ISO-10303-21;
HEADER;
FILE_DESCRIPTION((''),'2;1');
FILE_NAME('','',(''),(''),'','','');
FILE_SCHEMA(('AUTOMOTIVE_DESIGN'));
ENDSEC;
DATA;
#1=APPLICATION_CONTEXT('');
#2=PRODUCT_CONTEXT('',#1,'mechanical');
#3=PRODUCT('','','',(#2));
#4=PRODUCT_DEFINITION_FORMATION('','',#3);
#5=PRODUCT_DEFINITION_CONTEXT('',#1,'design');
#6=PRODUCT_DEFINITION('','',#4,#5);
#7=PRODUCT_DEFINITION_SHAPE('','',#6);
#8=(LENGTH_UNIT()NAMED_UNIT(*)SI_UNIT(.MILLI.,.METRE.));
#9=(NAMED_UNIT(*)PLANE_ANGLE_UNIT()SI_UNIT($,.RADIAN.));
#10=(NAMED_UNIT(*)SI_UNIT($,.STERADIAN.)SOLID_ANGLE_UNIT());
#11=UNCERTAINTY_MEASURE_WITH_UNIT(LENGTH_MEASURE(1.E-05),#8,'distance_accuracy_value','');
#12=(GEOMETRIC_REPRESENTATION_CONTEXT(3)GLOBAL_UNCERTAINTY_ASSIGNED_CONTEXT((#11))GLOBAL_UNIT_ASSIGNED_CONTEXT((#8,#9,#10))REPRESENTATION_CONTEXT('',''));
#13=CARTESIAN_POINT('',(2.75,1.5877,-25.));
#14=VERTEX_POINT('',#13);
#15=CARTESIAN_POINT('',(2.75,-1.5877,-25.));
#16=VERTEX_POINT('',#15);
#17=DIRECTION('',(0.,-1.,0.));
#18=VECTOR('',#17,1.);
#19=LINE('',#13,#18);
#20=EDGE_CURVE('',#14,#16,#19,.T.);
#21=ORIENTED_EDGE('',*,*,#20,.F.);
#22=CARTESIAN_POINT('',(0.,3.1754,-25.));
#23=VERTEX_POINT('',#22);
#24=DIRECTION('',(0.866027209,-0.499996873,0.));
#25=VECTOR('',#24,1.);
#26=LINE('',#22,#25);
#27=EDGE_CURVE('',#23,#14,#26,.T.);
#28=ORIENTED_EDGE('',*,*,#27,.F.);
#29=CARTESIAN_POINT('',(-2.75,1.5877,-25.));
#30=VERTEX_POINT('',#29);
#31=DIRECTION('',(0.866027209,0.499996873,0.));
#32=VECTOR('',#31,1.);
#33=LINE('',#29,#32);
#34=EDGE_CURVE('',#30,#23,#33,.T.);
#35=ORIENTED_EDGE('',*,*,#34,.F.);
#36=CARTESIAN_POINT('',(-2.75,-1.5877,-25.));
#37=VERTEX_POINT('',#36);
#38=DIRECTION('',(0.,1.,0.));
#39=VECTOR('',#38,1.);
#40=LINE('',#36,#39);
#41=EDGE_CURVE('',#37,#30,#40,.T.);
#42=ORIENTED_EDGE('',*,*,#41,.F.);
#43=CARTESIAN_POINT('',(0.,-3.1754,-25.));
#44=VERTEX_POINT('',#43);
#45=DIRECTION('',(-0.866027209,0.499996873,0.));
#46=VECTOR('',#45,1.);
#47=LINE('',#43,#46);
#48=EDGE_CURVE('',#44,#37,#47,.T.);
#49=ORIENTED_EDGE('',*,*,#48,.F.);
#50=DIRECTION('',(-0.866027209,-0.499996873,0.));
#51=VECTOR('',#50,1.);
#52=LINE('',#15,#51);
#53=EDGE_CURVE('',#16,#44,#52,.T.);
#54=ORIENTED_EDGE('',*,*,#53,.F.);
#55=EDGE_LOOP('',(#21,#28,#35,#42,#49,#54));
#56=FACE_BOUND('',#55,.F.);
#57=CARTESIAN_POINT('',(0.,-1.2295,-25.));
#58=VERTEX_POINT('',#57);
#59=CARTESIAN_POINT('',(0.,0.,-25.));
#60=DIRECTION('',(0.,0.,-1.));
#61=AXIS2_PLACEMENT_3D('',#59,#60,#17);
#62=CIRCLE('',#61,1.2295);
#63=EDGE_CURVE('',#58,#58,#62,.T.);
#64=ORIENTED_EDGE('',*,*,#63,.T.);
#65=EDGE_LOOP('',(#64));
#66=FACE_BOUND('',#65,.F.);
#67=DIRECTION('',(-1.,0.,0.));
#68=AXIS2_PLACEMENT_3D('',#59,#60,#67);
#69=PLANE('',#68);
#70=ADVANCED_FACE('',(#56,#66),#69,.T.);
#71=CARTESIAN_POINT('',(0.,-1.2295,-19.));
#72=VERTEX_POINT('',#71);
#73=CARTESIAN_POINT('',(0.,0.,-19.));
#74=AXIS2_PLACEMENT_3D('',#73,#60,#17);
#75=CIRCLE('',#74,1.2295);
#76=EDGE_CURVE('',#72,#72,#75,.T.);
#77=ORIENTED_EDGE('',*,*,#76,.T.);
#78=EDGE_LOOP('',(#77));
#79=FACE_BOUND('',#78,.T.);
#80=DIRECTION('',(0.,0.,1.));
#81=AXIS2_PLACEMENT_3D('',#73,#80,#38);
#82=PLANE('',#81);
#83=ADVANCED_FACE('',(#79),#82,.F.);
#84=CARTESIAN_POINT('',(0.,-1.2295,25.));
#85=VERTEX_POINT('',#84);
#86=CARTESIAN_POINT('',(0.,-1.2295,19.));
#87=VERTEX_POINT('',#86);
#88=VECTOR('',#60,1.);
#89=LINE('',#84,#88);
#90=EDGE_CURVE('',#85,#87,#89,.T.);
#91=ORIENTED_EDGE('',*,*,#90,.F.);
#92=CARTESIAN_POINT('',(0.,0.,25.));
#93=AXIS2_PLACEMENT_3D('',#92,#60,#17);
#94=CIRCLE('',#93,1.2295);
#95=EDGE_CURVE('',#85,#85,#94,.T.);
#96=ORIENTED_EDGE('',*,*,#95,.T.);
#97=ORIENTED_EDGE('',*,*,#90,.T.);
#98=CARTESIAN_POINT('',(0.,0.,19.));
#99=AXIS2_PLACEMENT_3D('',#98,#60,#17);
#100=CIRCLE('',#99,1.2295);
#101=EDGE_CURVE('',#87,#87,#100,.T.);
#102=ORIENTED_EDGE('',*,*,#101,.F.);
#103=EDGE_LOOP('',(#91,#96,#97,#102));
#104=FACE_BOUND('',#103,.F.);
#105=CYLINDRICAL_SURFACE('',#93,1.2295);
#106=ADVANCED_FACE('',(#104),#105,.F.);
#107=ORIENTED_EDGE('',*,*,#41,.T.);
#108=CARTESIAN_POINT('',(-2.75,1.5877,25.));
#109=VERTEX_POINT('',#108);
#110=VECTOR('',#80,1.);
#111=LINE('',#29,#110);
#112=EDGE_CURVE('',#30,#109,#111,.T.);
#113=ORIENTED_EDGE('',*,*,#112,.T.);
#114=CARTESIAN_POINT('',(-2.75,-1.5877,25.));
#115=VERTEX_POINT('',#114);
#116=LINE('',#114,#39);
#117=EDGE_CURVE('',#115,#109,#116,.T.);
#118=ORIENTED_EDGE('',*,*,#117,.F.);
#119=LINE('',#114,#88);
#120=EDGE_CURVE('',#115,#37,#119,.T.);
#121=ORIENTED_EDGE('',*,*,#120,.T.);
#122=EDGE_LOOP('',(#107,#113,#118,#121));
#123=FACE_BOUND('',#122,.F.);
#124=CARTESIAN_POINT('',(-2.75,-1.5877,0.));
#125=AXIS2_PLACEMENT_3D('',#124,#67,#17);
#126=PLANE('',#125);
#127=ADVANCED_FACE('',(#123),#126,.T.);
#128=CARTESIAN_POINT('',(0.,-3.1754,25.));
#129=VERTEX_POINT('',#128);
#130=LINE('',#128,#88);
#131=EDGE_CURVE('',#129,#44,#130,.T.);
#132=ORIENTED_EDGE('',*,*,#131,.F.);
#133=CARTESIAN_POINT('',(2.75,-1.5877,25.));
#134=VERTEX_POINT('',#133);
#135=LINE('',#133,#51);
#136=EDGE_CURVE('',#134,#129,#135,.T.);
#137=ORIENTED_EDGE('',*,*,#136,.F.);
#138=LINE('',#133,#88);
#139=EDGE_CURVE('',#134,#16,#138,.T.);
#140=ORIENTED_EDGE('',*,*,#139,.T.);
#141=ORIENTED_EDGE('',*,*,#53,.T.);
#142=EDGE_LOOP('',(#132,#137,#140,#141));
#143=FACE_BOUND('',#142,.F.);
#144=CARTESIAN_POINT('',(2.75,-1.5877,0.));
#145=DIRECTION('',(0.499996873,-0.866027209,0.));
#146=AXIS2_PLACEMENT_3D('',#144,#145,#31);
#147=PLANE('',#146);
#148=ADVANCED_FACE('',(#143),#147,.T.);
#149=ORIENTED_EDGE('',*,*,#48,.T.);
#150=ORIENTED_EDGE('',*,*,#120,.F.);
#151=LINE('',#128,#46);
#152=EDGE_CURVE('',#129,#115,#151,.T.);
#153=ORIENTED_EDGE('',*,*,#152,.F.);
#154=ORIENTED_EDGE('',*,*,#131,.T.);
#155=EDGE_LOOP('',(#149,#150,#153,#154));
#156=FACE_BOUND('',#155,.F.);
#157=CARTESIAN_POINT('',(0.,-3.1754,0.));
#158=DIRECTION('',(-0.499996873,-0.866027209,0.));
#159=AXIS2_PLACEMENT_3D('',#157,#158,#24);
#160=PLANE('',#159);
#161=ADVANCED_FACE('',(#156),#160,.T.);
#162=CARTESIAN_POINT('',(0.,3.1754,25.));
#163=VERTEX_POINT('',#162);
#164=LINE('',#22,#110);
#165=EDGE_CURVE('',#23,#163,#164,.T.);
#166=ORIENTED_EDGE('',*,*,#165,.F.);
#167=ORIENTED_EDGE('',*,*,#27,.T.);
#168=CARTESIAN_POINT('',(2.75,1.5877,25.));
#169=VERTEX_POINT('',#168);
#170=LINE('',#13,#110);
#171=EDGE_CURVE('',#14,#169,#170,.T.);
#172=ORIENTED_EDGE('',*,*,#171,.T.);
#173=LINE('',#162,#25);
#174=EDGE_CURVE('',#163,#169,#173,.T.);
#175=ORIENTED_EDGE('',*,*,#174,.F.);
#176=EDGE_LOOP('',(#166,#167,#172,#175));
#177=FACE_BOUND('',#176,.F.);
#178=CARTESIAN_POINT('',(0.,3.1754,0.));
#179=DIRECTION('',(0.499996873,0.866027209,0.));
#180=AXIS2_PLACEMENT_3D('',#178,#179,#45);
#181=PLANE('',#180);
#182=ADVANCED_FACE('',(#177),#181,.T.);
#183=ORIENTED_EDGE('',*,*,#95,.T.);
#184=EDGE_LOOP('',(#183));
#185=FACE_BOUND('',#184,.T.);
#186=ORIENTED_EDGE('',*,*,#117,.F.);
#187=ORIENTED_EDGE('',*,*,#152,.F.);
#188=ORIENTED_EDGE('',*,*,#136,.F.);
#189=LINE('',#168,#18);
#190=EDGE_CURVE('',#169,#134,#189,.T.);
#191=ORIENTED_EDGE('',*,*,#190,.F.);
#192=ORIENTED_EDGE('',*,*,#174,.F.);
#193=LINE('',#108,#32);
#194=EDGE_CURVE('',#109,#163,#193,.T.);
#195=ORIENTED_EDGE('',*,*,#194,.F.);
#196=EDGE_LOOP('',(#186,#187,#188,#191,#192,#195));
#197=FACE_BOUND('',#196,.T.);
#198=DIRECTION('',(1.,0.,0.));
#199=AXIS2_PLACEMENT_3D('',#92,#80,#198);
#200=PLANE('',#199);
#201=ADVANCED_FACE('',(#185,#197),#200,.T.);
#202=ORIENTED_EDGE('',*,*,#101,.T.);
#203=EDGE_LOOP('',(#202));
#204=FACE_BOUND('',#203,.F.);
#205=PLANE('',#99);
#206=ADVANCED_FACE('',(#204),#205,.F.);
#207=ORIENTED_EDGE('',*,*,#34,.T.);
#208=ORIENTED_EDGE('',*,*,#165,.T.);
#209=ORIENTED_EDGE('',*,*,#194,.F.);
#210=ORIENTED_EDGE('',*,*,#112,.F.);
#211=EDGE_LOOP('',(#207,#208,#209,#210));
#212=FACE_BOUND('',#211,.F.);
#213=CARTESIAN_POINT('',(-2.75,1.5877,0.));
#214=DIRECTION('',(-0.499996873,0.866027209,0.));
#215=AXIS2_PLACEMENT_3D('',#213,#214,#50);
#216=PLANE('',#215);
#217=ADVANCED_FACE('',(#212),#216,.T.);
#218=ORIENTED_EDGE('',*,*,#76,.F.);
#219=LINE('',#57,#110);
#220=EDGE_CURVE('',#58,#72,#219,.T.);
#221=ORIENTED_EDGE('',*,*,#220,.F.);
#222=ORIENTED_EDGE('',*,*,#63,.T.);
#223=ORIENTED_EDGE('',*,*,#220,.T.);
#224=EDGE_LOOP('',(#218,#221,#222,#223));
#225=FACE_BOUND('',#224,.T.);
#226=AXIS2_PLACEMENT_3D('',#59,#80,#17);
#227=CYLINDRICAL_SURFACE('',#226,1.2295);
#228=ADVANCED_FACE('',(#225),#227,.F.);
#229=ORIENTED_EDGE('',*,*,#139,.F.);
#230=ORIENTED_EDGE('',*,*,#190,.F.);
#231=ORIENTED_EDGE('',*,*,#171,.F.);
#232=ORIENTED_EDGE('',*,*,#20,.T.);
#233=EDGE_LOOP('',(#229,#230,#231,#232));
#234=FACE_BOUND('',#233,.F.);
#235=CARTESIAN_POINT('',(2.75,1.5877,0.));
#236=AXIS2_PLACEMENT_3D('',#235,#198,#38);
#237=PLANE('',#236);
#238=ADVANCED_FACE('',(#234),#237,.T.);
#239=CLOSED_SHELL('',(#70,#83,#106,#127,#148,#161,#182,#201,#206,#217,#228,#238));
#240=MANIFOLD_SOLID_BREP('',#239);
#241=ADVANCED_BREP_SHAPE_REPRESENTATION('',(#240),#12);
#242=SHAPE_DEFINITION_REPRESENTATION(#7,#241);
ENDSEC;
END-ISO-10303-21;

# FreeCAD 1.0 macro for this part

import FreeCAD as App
import Part
import Sketcher
from FreeCAD import Vector
Q = App.Units.Quantity


def add_polygon(sketch, points):
    """Adds a closed chain of lines whose ends are joined by coincident constraints."""
    first, n = sketch.GeometryCount, len(points)
    for a, b in zip(points, points[1:] + points[:1]):
        sketch.addGeometry(Part.LineSegment(App.Vector(*a, 0), App.Vector(*b, 0)), False)
    for i in range(n):
        sketch.addConstraint(Sketcher.Constraint("Coincident", first + i, 2, first + (i + 1) % n, 1))

doc = App.newDocument("Part")
body = doc.addObject("PartDesign::Body", "Body")

sketch1 = body.newObject("Sketcher::SketchObject", "Sketch")
sketch1.AttachmentSupport = (doc.getObject("XY_Plane"), [""])
sketch1.MapMode = "FlatFace"
add_polygon(sketch1, [(2.75, -1.5877), (2.75, 1.5877), (0, 3.1754), (-2.75, 1.5877), (-2.75, -1.5877), (0, -3.1754)])
sketch1.addConstraint(Sketcher.Constraint("Vertical", 0))
sketch1.addConstraint(Sketcher.Constraint("Vertical", 3))
sketch1.addConstraint(Sketcher.Constraint("Symmetric", 0, 2, 3, 2, -1, 1))
sketch1.addConstraint(Sketcher.Constraint("Symmetric", 1, 2, 4, 2, -1, 1))
sketch1.addConstraint(Sketcher.Constraint("PointOnObject", 1, 2, -2))
sketch1.addConstraint(Sketcher.Constraint("Parallel", 2, 5))
sketch1.addConstraint(Sketcher.Constraint("Horizontal", 0, 2, 2, 2))
sketch1.addConstraint(Sketcher.Constraint("DistanceX", 2, 2, 0, 2, Q("5.5 mm")))
sketch1.addConstraint(Sketcher.Constraint("Angle", 1, Q("150.0002 deg")))
sketch1.addConstraint(Sketcher.Constraint("DistanceY", 0, 1, 0, 2, Q("3.1754 mm")))
pad1 = body.newObject("PartDesign::Pad", "Pad")
pad1.Profile = sketch1
pad1.Length = 25

sketch2 = body.newObject("Sketcher::SketchObject", "Sketch001")
sketch2.AttachmentSupport = (doc.getObject("XY_Plane"), [""])
sketch2.MapMode = "FlatFace"
sketch2.AttachmentOffset = App.Placement(Vector(0, 0, 25), App.Rotation())
sketch2.addGeometry(Part.Circle(Vector(0, 0, 0), Vector(0, 0, 1), 1.2295), False)
sketch2.addConstraint(Sketcher.Constraint("Coincident", 0, 3, -1, 1))
sketch2.addConstraint(Sketcher.Constraint("Diameter", 0, Q("2.459 mm")))
doc.recompute()
hole = body.newObject("PartDesign::Hole", "Hole")
hole.Profile = sketch2
hole.ThreadType = "None"
hole.Diameter = 2.459
hole.DepthType = "Dimension"
hole.Depth = 6
hole.DrillPoint = "Flat"
doc.recompute()

mirrored = body.newObject("PartDesign::Mirrored", "Mirrored")
mirrored.Originals = [pad1, hole]
mirrored.MirrorPlane = (doc.getObject("XY_Plane"), [""])
body.Tip = mirrored

doc.recompute()
